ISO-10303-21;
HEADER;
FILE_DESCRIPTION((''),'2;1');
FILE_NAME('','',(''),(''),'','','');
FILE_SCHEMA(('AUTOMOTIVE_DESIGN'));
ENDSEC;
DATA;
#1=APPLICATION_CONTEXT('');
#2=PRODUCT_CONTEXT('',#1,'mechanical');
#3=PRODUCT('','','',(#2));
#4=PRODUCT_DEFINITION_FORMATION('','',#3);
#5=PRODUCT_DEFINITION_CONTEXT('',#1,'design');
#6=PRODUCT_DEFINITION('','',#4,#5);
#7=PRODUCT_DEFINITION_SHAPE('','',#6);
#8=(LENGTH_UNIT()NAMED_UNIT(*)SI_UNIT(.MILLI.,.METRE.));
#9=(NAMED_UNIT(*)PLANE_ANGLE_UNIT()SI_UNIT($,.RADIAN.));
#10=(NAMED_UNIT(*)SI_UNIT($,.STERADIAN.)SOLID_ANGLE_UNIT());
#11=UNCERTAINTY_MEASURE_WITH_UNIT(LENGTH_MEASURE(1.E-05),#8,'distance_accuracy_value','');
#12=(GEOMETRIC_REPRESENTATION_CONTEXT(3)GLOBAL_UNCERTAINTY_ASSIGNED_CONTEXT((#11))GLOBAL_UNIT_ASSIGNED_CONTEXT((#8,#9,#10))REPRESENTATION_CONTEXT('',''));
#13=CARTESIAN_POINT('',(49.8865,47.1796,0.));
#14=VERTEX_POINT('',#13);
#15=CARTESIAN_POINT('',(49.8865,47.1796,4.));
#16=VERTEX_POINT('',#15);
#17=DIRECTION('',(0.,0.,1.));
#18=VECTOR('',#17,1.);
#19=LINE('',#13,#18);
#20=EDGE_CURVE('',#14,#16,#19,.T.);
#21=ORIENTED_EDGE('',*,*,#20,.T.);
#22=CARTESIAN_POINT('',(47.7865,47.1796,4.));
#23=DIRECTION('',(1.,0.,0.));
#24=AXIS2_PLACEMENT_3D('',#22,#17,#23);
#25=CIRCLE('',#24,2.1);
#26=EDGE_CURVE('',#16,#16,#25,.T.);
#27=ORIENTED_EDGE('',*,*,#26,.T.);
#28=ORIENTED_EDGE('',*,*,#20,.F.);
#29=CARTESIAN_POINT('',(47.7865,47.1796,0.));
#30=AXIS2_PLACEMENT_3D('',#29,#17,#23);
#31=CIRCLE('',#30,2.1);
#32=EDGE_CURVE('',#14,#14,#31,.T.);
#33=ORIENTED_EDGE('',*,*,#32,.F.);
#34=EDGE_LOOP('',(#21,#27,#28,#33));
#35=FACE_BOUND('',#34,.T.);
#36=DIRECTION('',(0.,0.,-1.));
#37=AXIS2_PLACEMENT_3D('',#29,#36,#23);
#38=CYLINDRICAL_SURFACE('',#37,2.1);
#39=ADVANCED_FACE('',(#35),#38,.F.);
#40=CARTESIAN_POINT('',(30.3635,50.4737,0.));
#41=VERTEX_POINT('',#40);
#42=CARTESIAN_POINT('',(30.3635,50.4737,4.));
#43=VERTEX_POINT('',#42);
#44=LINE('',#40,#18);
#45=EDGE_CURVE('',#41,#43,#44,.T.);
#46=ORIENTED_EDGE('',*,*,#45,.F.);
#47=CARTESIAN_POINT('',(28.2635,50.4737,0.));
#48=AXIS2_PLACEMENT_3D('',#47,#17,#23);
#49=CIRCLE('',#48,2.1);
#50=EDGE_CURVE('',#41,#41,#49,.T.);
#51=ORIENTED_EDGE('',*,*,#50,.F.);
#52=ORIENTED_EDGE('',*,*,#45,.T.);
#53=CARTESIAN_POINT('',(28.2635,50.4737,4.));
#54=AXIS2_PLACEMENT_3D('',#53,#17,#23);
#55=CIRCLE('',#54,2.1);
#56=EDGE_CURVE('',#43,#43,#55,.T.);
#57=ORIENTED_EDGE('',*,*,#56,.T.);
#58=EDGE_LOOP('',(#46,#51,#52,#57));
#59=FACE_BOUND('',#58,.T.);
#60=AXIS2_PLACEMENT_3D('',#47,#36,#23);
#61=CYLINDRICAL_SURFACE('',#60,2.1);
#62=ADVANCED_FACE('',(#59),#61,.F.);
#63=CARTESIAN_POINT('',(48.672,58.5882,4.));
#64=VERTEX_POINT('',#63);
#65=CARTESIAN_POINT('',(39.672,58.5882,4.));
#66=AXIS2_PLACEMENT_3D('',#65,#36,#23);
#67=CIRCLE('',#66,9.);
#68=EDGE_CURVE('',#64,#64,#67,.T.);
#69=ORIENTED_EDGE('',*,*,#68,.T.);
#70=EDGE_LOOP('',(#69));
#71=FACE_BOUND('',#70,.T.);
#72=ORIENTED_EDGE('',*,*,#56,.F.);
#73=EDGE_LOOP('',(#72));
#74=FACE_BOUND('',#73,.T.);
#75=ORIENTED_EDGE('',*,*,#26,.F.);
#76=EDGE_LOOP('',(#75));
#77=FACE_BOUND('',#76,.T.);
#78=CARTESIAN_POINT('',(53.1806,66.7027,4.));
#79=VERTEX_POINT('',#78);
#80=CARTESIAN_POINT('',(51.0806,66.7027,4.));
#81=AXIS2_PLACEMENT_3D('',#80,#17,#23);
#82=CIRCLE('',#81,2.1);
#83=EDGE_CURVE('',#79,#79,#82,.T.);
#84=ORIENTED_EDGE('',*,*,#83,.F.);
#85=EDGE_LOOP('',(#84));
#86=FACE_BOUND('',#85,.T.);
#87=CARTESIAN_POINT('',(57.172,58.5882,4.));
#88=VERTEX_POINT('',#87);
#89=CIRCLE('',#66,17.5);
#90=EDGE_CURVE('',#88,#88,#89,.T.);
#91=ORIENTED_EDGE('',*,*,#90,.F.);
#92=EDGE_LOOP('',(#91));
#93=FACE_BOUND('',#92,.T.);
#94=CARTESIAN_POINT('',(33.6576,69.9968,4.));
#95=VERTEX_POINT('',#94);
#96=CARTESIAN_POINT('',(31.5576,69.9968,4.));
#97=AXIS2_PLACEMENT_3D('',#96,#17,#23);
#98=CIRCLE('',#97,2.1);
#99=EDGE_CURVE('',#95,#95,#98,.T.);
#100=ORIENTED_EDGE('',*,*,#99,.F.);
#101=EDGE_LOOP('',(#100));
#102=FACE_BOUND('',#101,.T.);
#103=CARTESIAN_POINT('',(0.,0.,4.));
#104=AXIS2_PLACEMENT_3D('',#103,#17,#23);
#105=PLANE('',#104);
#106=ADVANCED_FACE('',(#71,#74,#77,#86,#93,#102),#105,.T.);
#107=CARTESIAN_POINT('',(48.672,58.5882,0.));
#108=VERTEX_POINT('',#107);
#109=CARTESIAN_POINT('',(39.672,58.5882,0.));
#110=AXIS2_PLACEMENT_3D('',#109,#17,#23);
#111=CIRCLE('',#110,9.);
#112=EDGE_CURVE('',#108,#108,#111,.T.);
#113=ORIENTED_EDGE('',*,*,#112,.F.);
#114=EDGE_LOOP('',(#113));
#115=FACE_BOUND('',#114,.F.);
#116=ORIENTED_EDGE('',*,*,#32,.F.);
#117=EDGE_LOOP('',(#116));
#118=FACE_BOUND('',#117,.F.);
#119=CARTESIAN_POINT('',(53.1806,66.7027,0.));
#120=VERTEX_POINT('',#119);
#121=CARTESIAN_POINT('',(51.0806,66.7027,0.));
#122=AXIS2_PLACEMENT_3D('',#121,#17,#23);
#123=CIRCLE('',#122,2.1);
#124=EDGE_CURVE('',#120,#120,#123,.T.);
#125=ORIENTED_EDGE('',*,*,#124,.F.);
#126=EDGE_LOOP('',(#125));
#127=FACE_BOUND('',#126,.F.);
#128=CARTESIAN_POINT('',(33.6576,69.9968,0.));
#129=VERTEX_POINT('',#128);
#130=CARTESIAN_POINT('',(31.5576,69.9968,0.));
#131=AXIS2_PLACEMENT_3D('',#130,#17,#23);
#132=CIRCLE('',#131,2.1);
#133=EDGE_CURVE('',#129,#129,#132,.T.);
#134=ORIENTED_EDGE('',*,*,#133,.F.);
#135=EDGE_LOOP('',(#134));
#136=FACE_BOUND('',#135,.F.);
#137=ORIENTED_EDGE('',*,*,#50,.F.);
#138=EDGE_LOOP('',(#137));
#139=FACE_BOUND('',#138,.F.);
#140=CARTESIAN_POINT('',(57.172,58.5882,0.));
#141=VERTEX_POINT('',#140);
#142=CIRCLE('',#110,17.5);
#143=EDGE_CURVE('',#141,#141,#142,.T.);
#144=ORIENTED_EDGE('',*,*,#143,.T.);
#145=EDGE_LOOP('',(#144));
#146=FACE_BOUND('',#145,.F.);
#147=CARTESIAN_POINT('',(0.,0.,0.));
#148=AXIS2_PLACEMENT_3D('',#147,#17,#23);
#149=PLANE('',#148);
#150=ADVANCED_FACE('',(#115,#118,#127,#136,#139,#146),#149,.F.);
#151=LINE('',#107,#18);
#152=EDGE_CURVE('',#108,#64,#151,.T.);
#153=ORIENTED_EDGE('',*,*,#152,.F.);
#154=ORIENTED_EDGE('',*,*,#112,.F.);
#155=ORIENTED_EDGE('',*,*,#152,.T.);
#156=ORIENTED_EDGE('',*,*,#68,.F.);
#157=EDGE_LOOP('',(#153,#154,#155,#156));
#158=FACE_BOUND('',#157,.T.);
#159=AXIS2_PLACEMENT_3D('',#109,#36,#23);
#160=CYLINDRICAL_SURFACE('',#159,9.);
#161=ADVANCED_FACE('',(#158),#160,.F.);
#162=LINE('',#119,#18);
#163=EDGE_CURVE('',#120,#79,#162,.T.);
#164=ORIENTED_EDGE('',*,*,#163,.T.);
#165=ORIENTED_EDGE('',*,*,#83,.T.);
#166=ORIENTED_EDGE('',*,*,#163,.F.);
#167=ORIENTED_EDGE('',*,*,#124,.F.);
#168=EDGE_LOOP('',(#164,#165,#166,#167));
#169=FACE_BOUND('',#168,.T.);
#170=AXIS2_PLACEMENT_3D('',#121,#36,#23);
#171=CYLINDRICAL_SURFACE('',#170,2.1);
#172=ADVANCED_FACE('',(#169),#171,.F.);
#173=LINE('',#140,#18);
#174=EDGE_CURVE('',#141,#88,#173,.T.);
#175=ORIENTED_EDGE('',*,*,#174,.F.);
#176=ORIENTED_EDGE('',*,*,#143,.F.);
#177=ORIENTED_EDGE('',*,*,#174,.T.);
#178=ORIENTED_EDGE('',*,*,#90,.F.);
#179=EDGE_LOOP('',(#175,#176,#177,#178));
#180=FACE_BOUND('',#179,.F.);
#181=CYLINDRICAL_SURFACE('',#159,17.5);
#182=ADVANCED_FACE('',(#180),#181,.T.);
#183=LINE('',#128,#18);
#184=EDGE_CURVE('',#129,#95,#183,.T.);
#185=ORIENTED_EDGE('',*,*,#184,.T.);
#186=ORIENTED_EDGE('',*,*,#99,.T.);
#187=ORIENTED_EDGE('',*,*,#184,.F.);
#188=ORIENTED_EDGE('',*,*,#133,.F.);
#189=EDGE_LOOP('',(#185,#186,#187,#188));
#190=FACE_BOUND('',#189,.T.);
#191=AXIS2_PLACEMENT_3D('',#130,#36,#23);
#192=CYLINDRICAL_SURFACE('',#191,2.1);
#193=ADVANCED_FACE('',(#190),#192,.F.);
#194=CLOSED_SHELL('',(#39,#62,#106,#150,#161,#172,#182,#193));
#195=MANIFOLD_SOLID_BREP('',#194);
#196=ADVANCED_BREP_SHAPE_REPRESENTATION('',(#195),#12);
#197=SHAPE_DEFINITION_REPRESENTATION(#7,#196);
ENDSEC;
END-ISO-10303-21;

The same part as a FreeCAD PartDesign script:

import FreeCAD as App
import Part
import Sketcher

doc = App.newDocument("Part")
body = doc.addObject("PartDesign::Body", "Body")

# Sketch on XY plane
sketch1 = doc.addObject("Sketcher::SketchObject", "Sketch")
body.addObject(sketch1)
sketch1.AttachmentSupport = (doc.XY_Plane, [""])
sketch1.MapMode = "FlatFace"
sketch1.addGeometry([
    Part.Circle(App.Vector(39.7, 58.6, 0), App.Vector(0, 0, 1), 17.5),  # 0
    Part.Circle(App.Vector(39.7, 58.6, 0), App.Vector(0, 0, 1), 9),  # 1
    Part.Circle(App.Vector(31.6, 70, 0), App.Vector(0, 0, 1), 2.1),  # 2
    Part.Circle(App.Vector(28.3, 50.5, 0), App.Vector(0, 0, 1), 2.1),  # 3
    Part.Circle(App.Vector(51.1, 66.7, 0), App.Vector(0, 0, 1), 2.1),  # 4
    Part.Circle(App.Vector(47.8, 47.2, 0), App.Vector(0, 0, 1), 2.1),  # 5
], False)
sketch1.addConstraint([
    Sketcher.Constraint("Coincident", 1, 3, 0, 3),
    Sketcher.Constraint("Equal", 2, 3),
    Sketcher.Constraint("Equal", 3, 4),
    Sketcher.Constraint("Equal", 4, 5),
    Sketcher.Constraint("Diameter", 0, 35.0),
    Sketcher.Constraint("Diameter", 1, 18.0),
    Sketcher.Constraint("Diameter", 2, 4.2),
    Sketcher.Constraint("DistanceX", -1, 1, 0, 3, 39.672),
    Sketcher.Constraint("DistanceX", 3, 3, 2, 3, 3.294),
    Sketcher.Constraint("DistanceY", 3, 3, 2, 3, 19.523),
    Sketcher.Constraint("DistanceX", 2, 3, 4, 3, 19.523),
    Sketcher.Constraint("DistanceY", 4, 3, 2, 3, 3.294),
    Sketcher.Constraint("DistanceX", 3, 3, 5, 3, 19.523),
    Sketcher.Constraint("DistanceY", 5, 3, 3, 3, 3.294),
    Sketcher.Constraint("DistanceY", -1, 1, 0, 3, 58.5882),
    Sketcher.Constraint("DistanceX", -1, 1, 2, 3, 31.5576),
    Sketcher.Constraint("DistanceY", -1, 1, 2, 3, 69.9968),
])
pad1 = doc.addObject("PartDesign::Pad", "Pad")
body.addObject(pad1)
pad1.Profile = sketch1
pad1.Length = 4

doc.recompute()
